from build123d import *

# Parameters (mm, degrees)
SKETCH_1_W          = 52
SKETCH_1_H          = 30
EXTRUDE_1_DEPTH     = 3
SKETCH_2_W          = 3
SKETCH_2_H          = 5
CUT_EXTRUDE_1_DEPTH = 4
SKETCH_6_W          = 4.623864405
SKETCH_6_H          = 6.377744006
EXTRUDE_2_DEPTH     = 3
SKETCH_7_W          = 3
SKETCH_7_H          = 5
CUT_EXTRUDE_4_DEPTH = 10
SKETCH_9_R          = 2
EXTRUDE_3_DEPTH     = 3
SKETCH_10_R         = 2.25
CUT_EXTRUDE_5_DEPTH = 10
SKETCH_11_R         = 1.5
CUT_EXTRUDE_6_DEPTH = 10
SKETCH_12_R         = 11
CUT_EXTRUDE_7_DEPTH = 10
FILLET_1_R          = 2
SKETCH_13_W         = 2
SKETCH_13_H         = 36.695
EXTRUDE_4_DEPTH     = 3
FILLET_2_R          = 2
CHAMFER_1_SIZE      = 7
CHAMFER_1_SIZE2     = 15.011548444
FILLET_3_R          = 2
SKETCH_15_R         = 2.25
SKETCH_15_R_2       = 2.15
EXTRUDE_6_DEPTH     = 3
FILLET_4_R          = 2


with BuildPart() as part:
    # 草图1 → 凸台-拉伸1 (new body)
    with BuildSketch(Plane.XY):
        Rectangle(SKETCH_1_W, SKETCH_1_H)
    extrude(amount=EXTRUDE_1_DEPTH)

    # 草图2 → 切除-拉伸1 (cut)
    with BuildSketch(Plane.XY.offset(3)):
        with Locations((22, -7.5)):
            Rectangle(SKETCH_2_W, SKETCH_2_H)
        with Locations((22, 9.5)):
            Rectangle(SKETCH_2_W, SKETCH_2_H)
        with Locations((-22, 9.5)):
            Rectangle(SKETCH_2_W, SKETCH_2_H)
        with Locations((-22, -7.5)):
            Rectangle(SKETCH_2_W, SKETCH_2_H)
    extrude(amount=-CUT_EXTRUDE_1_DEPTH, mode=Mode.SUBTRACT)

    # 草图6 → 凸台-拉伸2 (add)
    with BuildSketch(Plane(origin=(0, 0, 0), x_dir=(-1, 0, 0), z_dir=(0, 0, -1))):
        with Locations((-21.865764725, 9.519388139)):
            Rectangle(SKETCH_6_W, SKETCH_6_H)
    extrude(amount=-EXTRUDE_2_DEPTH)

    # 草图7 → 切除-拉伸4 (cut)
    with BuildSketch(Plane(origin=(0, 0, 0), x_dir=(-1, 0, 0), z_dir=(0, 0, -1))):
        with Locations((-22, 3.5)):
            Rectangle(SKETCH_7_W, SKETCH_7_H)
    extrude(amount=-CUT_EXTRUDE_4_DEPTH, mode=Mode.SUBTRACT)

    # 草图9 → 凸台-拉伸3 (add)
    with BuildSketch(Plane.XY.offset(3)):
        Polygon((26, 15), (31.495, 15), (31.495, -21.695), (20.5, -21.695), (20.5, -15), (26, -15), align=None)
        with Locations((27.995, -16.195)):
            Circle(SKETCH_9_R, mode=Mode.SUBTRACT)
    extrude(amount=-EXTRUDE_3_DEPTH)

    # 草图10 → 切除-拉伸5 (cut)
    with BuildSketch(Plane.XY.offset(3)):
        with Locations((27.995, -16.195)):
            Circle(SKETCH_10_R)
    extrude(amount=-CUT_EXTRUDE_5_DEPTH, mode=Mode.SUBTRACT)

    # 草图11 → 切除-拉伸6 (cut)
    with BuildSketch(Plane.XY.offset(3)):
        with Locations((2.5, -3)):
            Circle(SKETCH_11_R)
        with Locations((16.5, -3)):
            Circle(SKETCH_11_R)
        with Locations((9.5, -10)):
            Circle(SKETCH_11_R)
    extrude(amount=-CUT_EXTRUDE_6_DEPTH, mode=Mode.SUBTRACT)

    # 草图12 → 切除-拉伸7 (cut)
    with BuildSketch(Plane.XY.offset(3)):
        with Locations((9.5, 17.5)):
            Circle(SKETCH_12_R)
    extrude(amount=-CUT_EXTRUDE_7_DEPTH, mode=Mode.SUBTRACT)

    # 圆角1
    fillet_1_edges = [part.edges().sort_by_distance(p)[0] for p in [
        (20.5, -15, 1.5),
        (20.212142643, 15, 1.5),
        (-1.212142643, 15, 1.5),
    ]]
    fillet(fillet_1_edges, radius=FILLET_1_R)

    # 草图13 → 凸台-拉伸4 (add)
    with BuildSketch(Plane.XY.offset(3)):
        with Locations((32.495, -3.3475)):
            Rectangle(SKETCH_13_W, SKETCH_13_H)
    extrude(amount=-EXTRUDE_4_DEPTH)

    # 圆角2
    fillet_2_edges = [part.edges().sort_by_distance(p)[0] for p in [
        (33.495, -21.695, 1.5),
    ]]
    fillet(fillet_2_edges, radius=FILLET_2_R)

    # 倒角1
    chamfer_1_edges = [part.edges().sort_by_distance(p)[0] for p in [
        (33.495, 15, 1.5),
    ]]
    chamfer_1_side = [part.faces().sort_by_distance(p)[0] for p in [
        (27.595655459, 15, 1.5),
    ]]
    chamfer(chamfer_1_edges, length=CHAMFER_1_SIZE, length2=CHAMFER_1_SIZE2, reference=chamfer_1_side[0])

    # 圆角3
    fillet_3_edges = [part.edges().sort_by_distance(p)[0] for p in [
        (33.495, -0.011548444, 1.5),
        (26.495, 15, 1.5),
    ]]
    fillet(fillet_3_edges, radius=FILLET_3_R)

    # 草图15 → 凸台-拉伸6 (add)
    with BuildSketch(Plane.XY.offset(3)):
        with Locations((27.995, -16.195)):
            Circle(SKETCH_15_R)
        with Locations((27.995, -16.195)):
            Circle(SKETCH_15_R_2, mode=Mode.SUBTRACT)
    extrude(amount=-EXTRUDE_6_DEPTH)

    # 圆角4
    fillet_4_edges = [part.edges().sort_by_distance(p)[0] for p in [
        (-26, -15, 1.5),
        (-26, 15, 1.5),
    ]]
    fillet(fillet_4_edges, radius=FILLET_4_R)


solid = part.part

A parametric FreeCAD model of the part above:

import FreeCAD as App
import Part
import Sketcher


def edges_at(feature, points):
    """Names of the edges that pass closest to the given points."""
    edges = feature.Shape.Edges
    near = lambda p: min(range(len(edges)), key=lambda i: edges[i].distToShape(Part.Vertex(*p))[0])
    return sorted({f"Edge{near(p) + 1}" for p in points})


def add_polygon(sketch, points):
    """Adds a closed chain of lines whose ends are joined by coincident constraints."""
    first, n = sketch.GeometryCount, len(points)
    for a, b in zip(points, points[1:] + points[:1]):
        sketch.addGeometry(Part.LineSegment(App.Vector(*a, 0), App.Vector(*b, 0)), False)
    for i in range(n):
        sketch.addConstraint(Sketcher.Constraint("Coincident", first + i, 2, first + (i + 1) % n, 1))

doc = App.newDocument("Part")
body = doc.addObject("PartDesign::Body", "Body")

# Sketch on XY plane
sketch1 = body.newObject("Sketcher::SketchObject", "Sketch")
sketch1.AttachmentSupport = (doc.getObject("XY_Plane"), [""])
sketch1.MapMode = "FlatFace"
add_polygon(sketch1, [(-26, 15), (-26, -15), (26, -15), (26, 15)])  # lines 0-3
sketch1.addConstraint([
    Sketcher.Constraint("Vertical", 0),
    Sketcher.Constraint("Horizontal", 1),
    Sketcher.Constraint("Vertical", 2),
    Sketcher.Constraint("Horizontal", 3),
    Sketcher.Constraint("Symmetric", 0, 2, 2, 2, -1, 1),
    Sketcher.Constraint("DistanceX", 1, 1, 1, 2, 52.0),
    Sketcher.Constraint("DistanceY", 0, 2, 0, 1, 30.0),
])
pad1 = body.newObject("PartDesign::Pad", "Pad")
pad1.Profile = sketch1
pad1.Length = 3

# Sketch on XY plane
sketch2 = body.newObject("Sketcher::SketchObject", "Sketch001")
sketch2.AttachmentSupport = (doc.getObject("XY_Plane"), [""])
sketch2.MapMode = "FlatFace"
sketch2.AttachmentOffset = App.Placement(App.Vector(0, 0, 3), App.Rotation())
add_polygon(sketch2, [(20.5, -5), (20.5, -10), (23.5, -10), (23.5, -5)])  # lines 0-3
add_polygon(sketch2, [(20.5, 12), (20.5, 7), (23.5, 7), (23.5, 12)])  # lines 4-7
add_polygon(sketch2, [(-23.5, 12), (-23.5, 7), (-20.5, 7), (-20.5, 12)])  # lines 8-11
add_polygon(sketch2, [(-23.5, -5), (-23.5, -10), (-20.5, -10), (-20.5, -5)])  # lines 12-15
sketch2.addConstraint([
    Sketcher.Constraint("Vertical", 0),
    Sketcher.Constraint("Horizontal", 1),
    Sketcher.Constraint("Vertical", 2),
    Sketcher.Constraint("Horizontal", 3),
    Sketcher.Constraint("Vertical", 4),
    Sketcher.Constraint("Horizontal", 5),
    Sketcher.Constraint("Vertical", 6),
    Sketcher.Constraint("Horizontal", 7),
    Sketcher.Constraint("Vertical", 8),
    Sketcher.Constraint("Horizontal", 9),
    Sketcher.Constraint("Vertical", 10),
    Sketcher.Constraint("Horizontal", 11),
    Sketcher.Constraint("Vertical", 12),
    Sketcher.Constraint("Horizontal", 13),
    Sketcher.Constraint("Vertical", 14),
    Sketcher.Constraint("Horizontal", 15),
    Sketcher.Constraint("Symmetric", 5, 2, 8, 2, -2),
    Sketcher.Constraint("Symmetric", 7, 2, 10, 2, -2),
    Sketcher.Constraint("Symmetric", 1, 2, 12, 2, -2),
    Sketcher.Constraint("Symmetric", 3, 2, 14, 2, -2),
    Sketcher.Constraint("Vertical", 3, 2, 4, 2),
    Sketcher.Constraint("Vertical", 2, 2, 5, 2),
    Sketcher.Constraint("Equal", 2, 4),
    Sketcher.Constraint("DistanceX", 1, 1, 1, 2, 3.0),
    Sketcher.Constraint("DistanceY", 0, 2, 0, 1, 5.0),
    Sketcher.Constraint("DistanceY", 0, 2, -1, 1, 10.0),
    Sketcher.Constraint("DistanceY", -1, 1, 4, 2, 7.0),
    Sketcher.Constraint("DistanceX", 8, 2, 4, 2, 44.0),
])
pocket1 = body.newObject("PartDesign::Pocket", "Pocket")
pocket1.Profile = sketch2
pocket1.Length = 4

# Sketch on XY plane
sketch3 = body.newObject("Sketcher::SketchObject", "Sketch002")
sketch3.AttachmentSupport = (doc.getObject("XY_Plane"), [""])
sketch3.MapMode = "FlatFace"
add_polygon(sketch3, [(24.177697, 12.70826), (24.177697, 6.330516), (19.553833, 6.330516), (19.553833, 12.70826)])  # lines 0-3
sketch3.addConstraint([
    Sketcher.Constraint("Vertical", 0),
    Sketcher.Constraint("Horizontal", 1),
    Sketcher.Constraint("Vertical", 2),
    Sketcher.Constraint("Horizontal", 3),
    Sketcher.Constraint("DistanceX", 1, 2, 1, 1, 4.623864),
    Sketcher.Constraint("DistanceY", 0, 2, 0, 1, 6.377744),
    Sketcher.Constraint("DistanceY", -1, 1, 2, 2, 12.70826),
    Sketcher.Constraint("DistanceX", -1, 1, 0, 2, 24.177697),
])
pad2 = body.newObject("PartDesign::Pad", "Pad001")
pad2.Profile = sketch3
pad2.Length = 3

# Sketch on XY plane
sketch4 = body.newObject("Sketcher::SketchObject", "Sketch003")
sketch4.AttachmentSupport = (doc.getObject("XY_Plane"), [""])
sketch4.MapMode = "FlatFace"
add_polygon(sketch4, [(23.5, 6), (23.5, 1), (20.5, 1), (20.5, 6)])  # lines 0-3
sketch4.addConstraint([
    Sketcher.Constraint("Vertical", 0),
    Sketcher.Constraint("Horizontal", 1),
    Sketcher.Constraint("Vertical", 2),
    Sketcher.Constraint("Horizontal", 3),
    Sketcher.Constraint("DistanceX", 1, 2, 1, 1, 3.0),
    Sketcher.Constraint("DistanceY", 0, 2, 0, 1, 5.0),
    Sketcher.Constraint("DistanceY", -1, 1, 0, 2, 1.0),
    Sketcher.Constraint("DistanceX", -1, 1, 0, 2, 23.5),
])
pocket2 = body.newObject("PartDesign::Pocket", "Pocket001")
pocket2.Profile = sketch4
pocket2.Length = 10
pocket2.Reversed = True

# Sketch on XY plane
sketch5 = body.newObject("Sketcher::SketchObject", "Sketch004")
sketch5.AttachmentSupport = (doc.getObject("XY_Plane"), [""])
sketch5.MapMode = "FlatFace"
sketch5.AttachmentOffset = App.Placement(App.Vector(0, 0, 3), App.Rotation())
add_polygon(sketch5, [(31.495, 15), (26, 15), (26, -15), (20.5, -15), (20.5, -21.695), (31.495, -21.695)])  # lines 0-5
sketch5.addGeometry(Part.Circle(App.Vector(27.995, -16.195, 0), App.Vector(0, 0, 1), 2), False)  # 6
sketch5.addConstraint([
    Sketcher.Constraint("Horizontal", 0),
    Sketcher.Constraint("Vertical", 1),
    Sketcher.Constraint("Horizontal", 2),
    Sketcher.Constraint("Vertical", 3),
    Sketcher.Constraint("Horizontal", 4),
    Sketcher.Constraint("Vertical", 5),
    Sketcher.Constraint("Diameter", 6, 4.0),
    Sketcher.Constraint("DistanceY", 1, 2, 1, 1, 30.0),
    Sketcher.Constraint("DistanceX", 2, 2, 2, 1, 5.5),
    Sketcher.Constraint("DistanceX", -1, 1, 0, 2, 26.0),
    Sketcher.Constraint("DistanceY", -1, 1, 0, 2, 15.0),
    Sketcher.Constraint("DistanceY", 3, 2, 6, 3, 5.5),
    Sketcher.Constraint("DistanceX", 6, 3, 4, 2, 3.5),
    Sketcher.Constraint("DistanceX", 0, 2, 0, 1, 5.495),
    Sketcher.Constraint("DistanceY", 3, 2, 3, 1, 6.695),
])
pad3 = body.newObject("PartDesign::Pad", "Pad002")
pad3.Profile = sketch5
pad3.Length = 3
pad3.Reversed = True

# Sketch on XY plane
sketch6 = body.newObject("Sketcher::SketchObject", "Sketch005")
sketch6.AttachmentSupport = (doc.getObject("XY_Plane"), [""])
sketch6.MapMode = "FlatFace"
sketch6.AttachmentOffset = App.Placement(App.Vector(0, 0, 3), App.Rotation())
sketch6.addGeometry(Part.Circle(App.Vector(27.995, -16.195, 0), App.Vector(0, 0, 1), 2.25), False)
sketch6.addConstraint([
    Sketcher.Constraint("Diameter", 0, 4.5),
    Sketcher.Constraint("DistanceX", -1, 1, 0, 3, 27.995),
    Sketcher.Constraint("DistanceY", 0, 3, -1, 1, 16.195),
])
pocket3 = body.newObject("PartDesign::Pocket", "Pocket002")
pocket3.Profile = sketch6
pocket3.Length = 10

# Sketch on XY plane
sketch7 = body.newObject("Sketcher::SketchObject", "Sketch006")
sketch7.AttachmentSupport = (doc.getObject("XY_Plane"), [""])
sketch7.MapMode = "FlatFace"
sketch7.AttachmentOffset = App.Placement(App.Vector(0, 0, 3), App.Rotation())
sketch7.addGeometry([
    Part.Circle(App.Vector(2.5, -3, 0), App.Vector(0, 0, 1), 1.5),
    Part.Circle(App.Vector(16.5, -3, 0), App.Vector(0, 0, 1), 1.5),
    Part.Circle(App.Vector(9.5, -10, 0), App.Vector(0, 0, 1), 1.5),
], False)
sketch7.addConstraint([
    Sketcher.Constraint("Equal", 0, 1),
    Sketcher.Constraint("Equal", 1, 2),
    Sketcher.Constraint("Horizontal", 0, 3, 1, 3),
    Sketcher.Constraint("Diameter", 0, 3.0),
    Sketcher.Constraint("DistanceY", 0, 3, -1, 1, 3.0),
    Sketcher.Constraint("DistanceY", 2, 3, -1, 1, 10.0),
    Sketcher.Constraint("DistanceX", 0, 3, 1, 3, 14.0),
    Sketcher.Constraint("DistanceX", 0, 3, 2, 3, 7.0),
    Sketcher.Constraint("DistanceX", -1, 1, 0, 3, 2.5),
])
pocket4 = body.newObject("PartDesign::Pocket", "Pocket003")
pocket4.Profile = sketch7
pocket4.Length = 10

# Sketch on XY plane
sketch8 = body.newObject("Sketcher::SketchObject", "Sketch007")
sketch8.AttachmentSupport = (doc.getObject("XY_Plane"), [""])
sketch8.MapMode = "FlatFace"
sketch8.AttachmentOffset = App.Placement(App.Vector(0, 0, 3), App.Rotation())
sketch8.addGeometry(Part.Circle(App.Vector(9.5, 17.5, 0), App.Vector(0, 0, 1), 11), False)
sketch8.addConstraint([
    Sketcher.Constraint("Diameter", 0, 22.0),
    Sketcher.Constraint("DistanceX", -1, 1, 0, 3, 9.5),
    Sketcher.Constraint("DistanceY", -1, 1, 0, 3, 17.5),
])
pocket5 = body.newObject("PartDesign::Pocket", "Pocket004")
pocket5.Profile = sketch8
pocket5.Length = 10
doc.recompute()

fillet = body.newObject("PartDesign::Fillet", "Fillet")
fillet.Base = (pocket5, edges_at(pocket5, [(20.5, -15, 1.5), (20.212, 15, 1.5), (-1.212, 15, 1.5)]))
fillet.Radius = 2

# Sketch on XY plane
sketch9 = body.newObject("Sketcher::SketchObject", "Sketch008")
sketch9.AttachmentSupport = (doc.getObject("XY_Plane"), [""])
sketch9.MapMode = "FlatFace"
sketch9.AttachmentOffset = App.Placement(App.Vector(0, 0, 3), App.Rotation())
add_polygon(sketch9, [(31.495, 15), (31.495, -21.695), (33.495, -21.695), (33.495, 15)])  # lines 0-3
sketch9.addConstraint([
    Sketcher.Constraint("Vertical", 0),
    Sketcher.Constraint("Horizontal", 1),
    Sketcher.Constraint("Vertical", 2),
    Sketcher.Constraint("Horizontal", 3),
    Sketcher.Constraint("DistanceX", 1, 1, 1, 2, 2.0),
    Sketcher.Constraint("DistanceY", -1, 1, 2, 2, 15.0),
    Sketcher.Constraint("DistanceY", 0, 2, 0, 1, 36.695),
    Sketcher.Constraint("DistanceX", -1, 1, 0, 2, 31.495),
])
pad4 = body.newObject("PartDesign::Pad", "Pad003")
pad4.Profile = sketch9
pad4.Length = 3
pad4.Reversed = True
doc.recompute()

fillet2 = body.newObject("PartDesign::Fillet", "Fillet001")
fillet2.Base = (pad4, edges_at(pad4, [(33.495, -21.695, 1.5)]))
fillet2.Radius = 2
doc.recompute()

chamfer = body.newObject("PartDesign::Chamfer", "Chamfer")
chamfer.Base = (fillet2, edges_at(fillet2, [(33.495, 15, 1.5)]))
chamfer.ChamferType = "Two distances"
chamfer.Size = 7
chamfer.Size2 = 15.011548
chamfer.FlipDirection = True
doc.recompute()

fillet3 = body.newObject("PartDesign::Fillet", "Fillet002")
fillet3.Base = (chamfer, edges_at(chamfer, [(33.495, -0.012, 1.5), (26.495, 15, 1.5)]))
fillet3.Radius = 2

# Sketch on XY plane
sketch10 = body.newObject("Sketcher::SketchObject", "Sketch009")
sketch10.AttachmentSupport = (doc.getObject("XY_Plane"), [""])
sketch10.MapMode = "FlatFace"
sketch10.AttachmentOffset = App.Placement(App.Vector(0, 0, 3), App.Rotation())
sketch10.addGeometry([
    Part.Circle(App.Vector(27.995, -16.195, 0), App.Vector(0, 0, 1), 2.25),
    Part.Circle(App.Vector(27.995, -16.195, 0), App.Vector(0, 0, 1), 2.15),
], False)
sketch10.addConstraint([
    Sketcher.Constraint("Coincident", 1, 3, 0, 3),
    Sketcher.Constraint("Diameter", 0, 4.5),
    Sketcher.Constraint("Diameter", 1, 4.3),
    Sketcher.Constraint("DistanceX", -1, 1, 0, 3, 27.995),
    Sketcher.Constraint("DistanceY", 0, 3, -1, 1, 16.195),
])
pad5 = body.newObject("PartDesign::Pad", "Pad004")
pad5.Profile = sketch10
pad5.Length = 3
pad5.Reversed = True
doc.recompute()

fillet4 = body.newObject("PartDesign::Fillet", "Fillet003")
fillet4.Base = (pad5, edges_at(pad5, [(-26, -15, 1.5), (-26, 15, 1.5)]))
fillet4.Radius = 2

doc.recompute()
